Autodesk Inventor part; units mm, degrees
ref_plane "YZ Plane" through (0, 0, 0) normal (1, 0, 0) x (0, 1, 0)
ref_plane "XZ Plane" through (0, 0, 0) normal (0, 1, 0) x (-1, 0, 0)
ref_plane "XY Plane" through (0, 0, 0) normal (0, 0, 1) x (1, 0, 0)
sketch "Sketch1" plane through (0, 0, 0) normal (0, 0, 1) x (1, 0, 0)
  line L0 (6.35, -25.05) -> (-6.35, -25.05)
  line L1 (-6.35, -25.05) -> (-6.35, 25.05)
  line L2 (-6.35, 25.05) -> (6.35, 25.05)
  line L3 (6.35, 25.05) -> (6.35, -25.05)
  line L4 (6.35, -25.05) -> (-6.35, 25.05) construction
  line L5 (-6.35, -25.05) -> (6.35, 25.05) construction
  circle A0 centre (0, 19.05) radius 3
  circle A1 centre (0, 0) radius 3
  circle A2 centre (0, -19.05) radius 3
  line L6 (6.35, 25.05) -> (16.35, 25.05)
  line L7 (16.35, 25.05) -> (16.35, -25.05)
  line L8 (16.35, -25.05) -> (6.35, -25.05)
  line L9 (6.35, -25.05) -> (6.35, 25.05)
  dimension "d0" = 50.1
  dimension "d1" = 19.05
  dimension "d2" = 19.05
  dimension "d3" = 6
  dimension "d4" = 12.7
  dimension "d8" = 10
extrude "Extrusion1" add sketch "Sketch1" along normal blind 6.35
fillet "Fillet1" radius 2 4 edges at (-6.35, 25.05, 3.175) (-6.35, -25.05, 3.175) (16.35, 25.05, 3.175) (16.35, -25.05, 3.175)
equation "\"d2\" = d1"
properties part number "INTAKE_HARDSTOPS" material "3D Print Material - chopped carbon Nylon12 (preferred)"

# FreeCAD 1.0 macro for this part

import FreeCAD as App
import Part
import Sketcher


def edges_at(feature, points):
    """Names of the edges that pass closest to the given points."""
    edges = feature.Shape.Edges
    near = lambda p: min(range(len(edges)), key=lambda i: edges[i].distToShape(Part.Vertex(*p))[0])
    return sorted({f"Edge{near(p) + 1}" for p in points})


def add_polygon(sketch, points):
    """Adds a closed chain of lines whose ends are joined by coincident constraints."""
    first, n = sketch.GeometryCount, len(points)
    for a, b in zip(points, points[1:] + points[:1]):
        sketch.addGeometry(Part.LineSegment(App.Vector(*a, 0), App.Vector(*b, 0)), False)
    for i in range(n):
        sketch.addConstraint(Sketcher.Constraint("Coincident", first + i, 2, first + (i + 1) % n, 1))

doc = App.newDocument("Part")
body = doc.addObject("PartDesign::Body", "Body")

# Sketch on XY plane
sketch1 = doc.addObject("Sketcher::SketchObject", "Sketch")
body.addObject(sketch1)
sketch1.AttachmentSupport = (doc.XY_Plane, [""])
sketch1.MapMode = "FlatFace"
add_polygon(sketch1, [(-6.3, -25.1), (16.4, -25.1), (16.4, 25.1), (-6.3, 25.1)])  # lines 0-3
sketch1.addGeometry(Part.Circle(App.Vector(0, -19.1, 0), App.Vector(0, 0, 1), 3), False)  # 4
sketch1.addGeometry(Part.Circle(App.Vector(0, 0, 0), App.Vector(0, 0, 1), 3), False)  # 5
sketch1.addGeometry(Part.Circle(App.Vector(0, 19.1, 0), App.Vector(0, 0, 1), 3), False)  # 6
sketch1.addConstraint([
    Sketcher.Constraint("Horizontal", 0),
    Sketcher.Constraint("Vertical", 1),
    Sketcher.Constraint("Horizontal", 2),
    Sketcher.Constraint("Vertical", 3),
    Sketcher.Constraint("Coincident", 5, 3, -1, 1),
    Sketcher.Constraint("Equal", 4, 5),
    Sketcher.Constraint("Equal", 5, 6),
    Sketcher.Constraint("Symmetric", 4, 3, 6, 3, -1, 1),
    Sketcher.Constraint("PointOnObject", 4, 3, -2),
    Sketcher.Constraint("Diameter", 4, 6.0),
    Sketcher.Constraint("DistanceY", 1, 1, 1, 2, 50.1),
    Sketcher.Constraint("DistanceY", 0, 2, 4, 3, 6.0),
    Sketcher.Constraint("DistanceY", 6, 3, 1, 2, 6.0),
    Sketcher.Constraint("DistanceX", 0, 1, 0, 2, 22.7),
    Sketcher.Constraint("DistanceX", -1, 1, 0, 2, 16.35),
])
pad1 = doc.addObject("PartDesign::Pad", "Pad")
body.addObject(pad1)
pad1.Profile = sketch1
pad1.Length = 6.35
doc.recompute()

fillet = doc.addObject("PartDesign::Fillet", "Fillet")
body.addObject(fillet)
fillet.Base = (pad1, edges_at(pad1, [
    (-6.35, 25.05, 3.175),
    (-6.35, -25.05, 3.175),
    (16.35, 25.05, 3.175),
    (16.35, -25.05, 3.175),
]))
fillet.Radius = 2

doc.recompute()
